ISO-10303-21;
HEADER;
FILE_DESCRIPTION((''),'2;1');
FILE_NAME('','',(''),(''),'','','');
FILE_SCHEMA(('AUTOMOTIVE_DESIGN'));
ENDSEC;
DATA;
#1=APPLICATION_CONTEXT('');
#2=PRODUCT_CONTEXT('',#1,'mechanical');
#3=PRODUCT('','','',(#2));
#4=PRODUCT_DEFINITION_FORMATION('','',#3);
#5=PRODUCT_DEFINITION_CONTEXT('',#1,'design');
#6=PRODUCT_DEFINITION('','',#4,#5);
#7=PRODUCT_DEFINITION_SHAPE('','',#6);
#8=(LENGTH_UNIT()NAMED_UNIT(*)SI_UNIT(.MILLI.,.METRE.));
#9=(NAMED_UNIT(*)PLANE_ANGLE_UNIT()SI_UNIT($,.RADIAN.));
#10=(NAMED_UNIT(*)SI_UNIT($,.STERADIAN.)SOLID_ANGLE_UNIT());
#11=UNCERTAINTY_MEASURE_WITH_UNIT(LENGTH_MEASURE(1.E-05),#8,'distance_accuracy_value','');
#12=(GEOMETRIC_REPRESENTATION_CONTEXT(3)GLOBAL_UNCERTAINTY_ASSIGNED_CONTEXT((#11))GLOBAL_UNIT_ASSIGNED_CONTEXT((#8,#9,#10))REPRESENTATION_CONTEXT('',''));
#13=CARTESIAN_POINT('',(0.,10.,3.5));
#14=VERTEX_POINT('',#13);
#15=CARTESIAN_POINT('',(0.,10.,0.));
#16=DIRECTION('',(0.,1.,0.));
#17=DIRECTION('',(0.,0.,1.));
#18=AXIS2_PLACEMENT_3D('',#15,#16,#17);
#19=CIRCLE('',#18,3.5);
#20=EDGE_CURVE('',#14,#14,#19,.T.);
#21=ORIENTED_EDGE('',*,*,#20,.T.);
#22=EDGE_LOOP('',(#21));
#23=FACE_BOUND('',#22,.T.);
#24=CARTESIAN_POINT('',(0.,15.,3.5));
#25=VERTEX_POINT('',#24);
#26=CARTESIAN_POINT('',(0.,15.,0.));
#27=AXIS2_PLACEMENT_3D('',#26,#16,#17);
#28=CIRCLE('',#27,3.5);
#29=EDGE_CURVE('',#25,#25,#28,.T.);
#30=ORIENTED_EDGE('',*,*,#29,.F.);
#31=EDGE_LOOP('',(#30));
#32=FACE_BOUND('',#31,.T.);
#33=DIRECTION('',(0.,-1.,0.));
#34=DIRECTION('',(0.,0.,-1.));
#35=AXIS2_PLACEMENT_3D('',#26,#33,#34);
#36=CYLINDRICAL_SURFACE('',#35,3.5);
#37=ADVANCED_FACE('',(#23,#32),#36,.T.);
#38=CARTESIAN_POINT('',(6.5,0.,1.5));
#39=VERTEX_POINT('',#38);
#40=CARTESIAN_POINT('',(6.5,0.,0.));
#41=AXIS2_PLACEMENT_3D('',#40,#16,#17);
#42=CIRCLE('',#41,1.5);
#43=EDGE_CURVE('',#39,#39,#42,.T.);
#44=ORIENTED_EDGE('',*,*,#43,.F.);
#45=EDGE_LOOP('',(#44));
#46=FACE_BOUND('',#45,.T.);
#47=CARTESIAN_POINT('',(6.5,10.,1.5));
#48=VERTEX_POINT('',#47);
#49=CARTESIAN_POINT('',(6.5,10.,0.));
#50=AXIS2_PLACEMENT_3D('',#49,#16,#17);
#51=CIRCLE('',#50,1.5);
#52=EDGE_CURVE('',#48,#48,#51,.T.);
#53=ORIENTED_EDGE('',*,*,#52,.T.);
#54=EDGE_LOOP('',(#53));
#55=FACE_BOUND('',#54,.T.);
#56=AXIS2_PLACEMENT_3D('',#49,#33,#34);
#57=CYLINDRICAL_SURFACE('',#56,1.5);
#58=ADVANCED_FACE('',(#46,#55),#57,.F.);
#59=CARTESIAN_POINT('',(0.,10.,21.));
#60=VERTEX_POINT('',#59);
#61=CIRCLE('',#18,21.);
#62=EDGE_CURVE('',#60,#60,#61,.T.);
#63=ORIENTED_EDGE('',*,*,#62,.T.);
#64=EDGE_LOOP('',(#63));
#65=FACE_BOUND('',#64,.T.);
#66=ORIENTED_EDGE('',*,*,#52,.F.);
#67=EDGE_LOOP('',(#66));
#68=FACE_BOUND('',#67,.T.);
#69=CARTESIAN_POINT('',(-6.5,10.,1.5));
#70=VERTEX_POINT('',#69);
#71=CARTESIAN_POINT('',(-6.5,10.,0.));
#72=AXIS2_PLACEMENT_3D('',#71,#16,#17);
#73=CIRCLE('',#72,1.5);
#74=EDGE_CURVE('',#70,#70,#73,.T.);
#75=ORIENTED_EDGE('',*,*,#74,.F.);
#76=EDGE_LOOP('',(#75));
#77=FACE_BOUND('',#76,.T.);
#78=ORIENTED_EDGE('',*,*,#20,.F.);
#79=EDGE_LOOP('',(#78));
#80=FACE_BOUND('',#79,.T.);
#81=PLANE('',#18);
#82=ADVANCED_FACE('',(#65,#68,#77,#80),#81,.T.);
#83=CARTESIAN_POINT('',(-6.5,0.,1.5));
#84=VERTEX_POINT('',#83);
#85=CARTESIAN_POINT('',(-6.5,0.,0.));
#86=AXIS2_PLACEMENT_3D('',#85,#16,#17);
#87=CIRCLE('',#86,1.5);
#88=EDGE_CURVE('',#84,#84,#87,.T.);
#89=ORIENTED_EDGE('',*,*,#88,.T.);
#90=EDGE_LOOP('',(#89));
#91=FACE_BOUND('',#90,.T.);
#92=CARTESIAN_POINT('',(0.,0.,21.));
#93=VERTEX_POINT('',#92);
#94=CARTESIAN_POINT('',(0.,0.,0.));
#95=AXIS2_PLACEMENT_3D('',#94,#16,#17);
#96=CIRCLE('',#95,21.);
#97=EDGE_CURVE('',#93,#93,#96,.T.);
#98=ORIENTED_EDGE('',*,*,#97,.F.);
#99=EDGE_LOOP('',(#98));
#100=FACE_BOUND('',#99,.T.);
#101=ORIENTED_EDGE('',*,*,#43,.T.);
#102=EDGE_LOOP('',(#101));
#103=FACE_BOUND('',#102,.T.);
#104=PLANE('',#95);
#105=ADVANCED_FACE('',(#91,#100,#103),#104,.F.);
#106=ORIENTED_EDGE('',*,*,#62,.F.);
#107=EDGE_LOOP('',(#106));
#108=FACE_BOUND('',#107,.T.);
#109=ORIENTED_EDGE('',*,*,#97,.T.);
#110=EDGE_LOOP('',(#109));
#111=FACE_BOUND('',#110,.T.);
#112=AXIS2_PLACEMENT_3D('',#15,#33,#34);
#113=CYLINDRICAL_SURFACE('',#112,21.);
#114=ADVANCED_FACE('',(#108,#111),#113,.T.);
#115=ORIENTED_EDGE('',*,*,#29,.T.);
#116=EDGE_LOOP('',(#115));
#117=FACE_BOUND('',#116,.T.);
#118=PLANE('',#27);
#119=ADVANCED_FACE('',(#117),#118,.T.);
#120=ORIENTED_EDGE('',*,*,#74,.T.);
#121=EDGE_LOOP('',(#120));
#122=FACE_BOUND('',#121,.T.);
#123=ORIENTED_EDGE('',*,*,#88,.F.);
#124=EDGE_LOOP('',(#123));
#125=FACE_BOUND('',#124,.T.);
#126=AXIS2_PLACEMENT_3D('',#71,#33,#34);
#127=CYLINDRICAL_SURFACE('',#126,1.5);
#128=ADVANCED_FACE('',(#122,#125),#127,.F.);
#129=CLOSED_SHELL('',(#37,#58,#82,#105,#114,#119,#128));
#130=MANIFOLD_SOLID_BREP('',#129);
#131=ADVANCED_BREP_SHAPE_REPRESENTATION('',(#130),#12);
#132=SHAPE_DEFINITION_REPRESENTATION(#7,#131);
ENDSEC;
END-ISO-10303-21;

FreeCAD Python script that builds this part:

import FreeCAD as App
import Part
import Sketcher
from FreeCAD import Vector

doc = App.newDocument("Part")
body = doc.addObject("PartDesign::Body", "Body")

sketch1 = doc.addObject("Sketcher::SketchObject", "Sketch")
body.addObject(sketch1)
sketch1.AttachmentSupport = (doc.XZ_Plane, [""])
sketch1.MapMode = "FlatFace"
sketch1.addGeometry([
    Part.Circle(Vector(0, 0, 0), Vector(0, 0, 1), 21),
    Part.Circle(Vector(-6.5, 0, 0), Vector(0, 0, 1), 1.5),
    Part.Circle(Vector(6.5, 0, 0), Vector(0, 0, 1), 1.5),
], False)
sketch1.addConstraint([
    Sketcher.Constraint("Coincident", 0, 3, -1, 1),
    Sketcher.Constraint("Equal", 1, 2),
    Sketcher.Constraint("Symmetric", 1, 3, 2, 3, -1, 1),
    Sketcher.Constraint("PointOnObject", 1, 3, -1),
    Sketcher.Constraint("Diameter", 0, 42.0),
    Sketcher.Constraint("Diameter", 1, 3.0),
    Sketcher.Constraint("DistanceX", 1, 3, 2, 3, 13.0),
])
pad1 = doc.addObject("PartDesign::Pad", "Pad")
body.addObject(pad1)
pad1.Profile = sketch1
pad1.Length = 10
pad1.Reversed = True

sketch2 = doc.addObject("Sketcher::SketchObject", "Sketch001")
body.addObject(sketch2)
sketch2.AttachmentSupport = (doc.XZ_Plane, [""])
sketch2.MapMode = "FlatFace"
sketch2.AttachmentOffset = App.Placement(Vector(0, 0, -10), App.Rotation())
sketch2.addGeometry(Part.Circle(Vector(0, 0, 0), Vector(0, 0, 1), 3.5), False)
sketch2.addConstraint([
    Sketcher.Constraint("Coincident", 0, 3, -1, 1),
    Sketcher.Constraint("Diameter", 0, 7.0),
])
pad2 = doc.addObject("PartDesign::Pad", "Pad001")
body.addObject(pad2)
pad2.Profile = sketch2
pad2.Length = 5
pad2.Reversed = True

doc.recompute()
